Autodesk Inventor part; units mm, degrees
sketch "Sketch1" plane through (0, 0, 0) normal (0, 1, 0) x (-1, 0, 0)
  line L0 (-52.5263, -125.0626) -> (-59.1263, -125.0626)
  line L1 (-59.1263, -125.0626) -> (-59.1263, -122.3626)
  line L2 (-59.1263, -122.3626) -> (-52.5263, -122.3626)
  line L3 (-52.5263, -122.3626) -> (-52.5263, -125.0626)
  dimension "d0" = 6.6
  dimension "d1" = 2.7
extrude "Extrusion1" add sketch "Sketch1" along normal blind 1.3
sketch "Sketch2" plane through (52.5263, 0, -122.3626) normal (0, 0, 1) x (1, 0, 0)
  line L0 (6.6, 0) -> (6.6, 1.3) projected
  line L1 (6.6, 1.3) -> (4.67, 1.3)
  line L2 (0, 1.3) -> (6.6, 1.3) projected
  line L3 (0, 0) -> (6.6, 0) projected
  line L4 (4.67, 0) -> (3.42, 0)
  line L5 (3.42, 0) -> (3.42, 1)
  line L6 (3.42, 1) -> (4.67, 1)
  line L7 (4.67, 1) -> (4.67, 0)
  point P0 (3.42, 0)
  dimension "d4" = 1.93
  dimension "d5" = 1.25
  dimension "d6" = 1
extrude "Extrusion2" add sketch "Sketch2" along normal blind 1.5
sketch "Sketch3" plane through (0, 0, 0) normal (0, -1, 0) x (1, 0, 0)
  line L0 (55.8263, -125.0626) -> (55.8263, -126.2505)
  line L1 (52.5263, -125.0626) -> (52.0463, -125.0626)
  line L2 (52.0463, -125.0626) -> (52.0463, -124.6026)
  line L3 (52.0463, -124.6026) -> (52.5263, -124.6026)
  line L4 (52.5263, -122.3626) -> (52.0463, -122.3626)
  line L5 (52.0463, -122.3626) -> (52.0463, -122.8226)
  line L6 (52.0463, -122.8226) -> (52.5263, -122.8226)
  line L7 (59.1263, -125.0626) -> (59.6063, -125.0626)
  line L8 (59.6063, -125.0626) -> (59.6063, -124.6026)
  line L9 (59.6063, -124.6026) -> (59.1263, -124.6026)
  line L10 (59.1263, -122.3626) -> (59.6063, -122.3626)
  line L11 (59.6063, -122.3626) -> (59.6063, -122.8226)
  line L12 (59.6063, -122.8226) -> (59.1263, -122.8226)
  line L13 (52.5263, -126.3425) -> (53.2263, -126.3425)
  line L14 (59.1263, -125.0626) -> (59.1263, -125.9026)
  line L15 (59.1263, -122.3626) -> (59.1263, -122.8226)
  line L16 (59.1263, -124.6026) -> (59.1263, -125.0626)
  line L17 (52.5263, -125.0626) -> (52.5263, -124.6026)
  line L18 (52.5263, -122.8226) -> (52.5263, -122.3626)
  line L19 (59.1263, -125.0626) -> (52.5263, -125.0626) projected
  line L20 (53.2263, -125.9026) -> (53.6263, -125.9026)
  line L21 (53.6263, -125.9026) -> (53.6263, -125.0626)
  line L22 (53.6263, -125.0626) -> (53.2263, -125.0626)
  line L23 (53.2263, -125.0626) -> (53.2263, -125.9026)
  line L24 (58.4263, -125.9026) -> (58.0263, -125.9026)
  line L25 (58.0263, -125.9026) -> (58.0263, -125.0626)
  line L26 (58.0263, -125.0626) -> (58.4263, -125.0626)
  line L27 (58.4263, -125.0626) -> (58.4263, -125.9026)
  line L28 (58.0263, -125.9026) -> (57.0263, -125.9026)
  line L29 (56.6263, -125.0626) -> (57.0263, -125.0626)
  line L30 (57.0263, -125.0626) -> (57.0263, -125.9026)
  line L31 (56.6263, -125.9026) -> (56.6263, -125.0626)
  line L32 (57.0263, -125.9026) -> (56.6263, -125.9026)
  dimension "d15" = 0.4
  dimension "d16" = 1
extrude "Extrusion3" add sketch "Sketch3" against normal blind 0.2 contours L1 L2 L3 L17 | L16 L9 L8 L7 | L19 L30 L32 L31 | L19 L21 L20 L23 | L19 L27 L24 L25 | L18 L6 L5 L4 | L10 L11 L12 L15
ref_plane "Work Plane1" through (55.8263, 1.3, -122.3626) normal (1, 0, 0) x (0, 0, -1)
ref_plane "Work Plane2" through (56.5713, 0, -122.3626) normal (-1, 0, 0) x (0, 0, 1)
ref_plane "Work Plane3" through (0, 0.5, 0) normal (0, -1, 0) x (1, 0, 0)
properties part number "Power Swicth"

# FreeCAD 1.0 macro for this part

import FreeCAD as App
import Part
import Sketcher

V = App.Vector
Q = App.Units.Quantity

doc = App.newDocument("Part")
params = doc.addObject("Spreadsheet::Sheet", "Params")
for row, (alias, value) in enumerate([
    ("sketch1_width", "6.6 mm"),
    ("sketch1_height", "2.7 mm"),
    ("pad1_length", "1.3 mm"),
    ("sketch2_height", "1 mm"),
    ("sketch2_width", "1.25 mm"),
    ("pad2_length", "1.5 mm"),
    ("sketch3_width", "0.4 mm"),
    ("sketch3_width2", "0.48 mm"),
    ("sketch3_height", "0.46 mm"),
    ("sketch3_height2", "0.84 mm"),
    ("pad3_length", "0.2 mm"),
], start=1):
    params.set(f"A{row}", alias)
    params.set(f"B{row}", "=" + value)
    params.setAlias(f"B{row}", alias)

body = doc.addObject("PartDesign::Body", "Body")

sketch1 = body.newObject("Sketcher::SketchObject", "Sketch")
sketch1.AttachmentSupport = (doc.getObject("XZ_Plane"), [""])
sketch1.MapMode = "FlatFace"
sketch1.addGeometry(Part.LineSegment(V(59.1263, -125.0626, 0), V(52.5263, -125.0626, 0)), False)
sketch1.addGeometry(Part.LineSegment(V(52.5263, -125.0626, 0), V(52.5263, -122.3626, 0)), False)
sketch1.addGeometry(Part.LineSegment(V(52.5263, -122.3626, 0), V(59.1263, -122.3626, 0)), False)
sketch1.addGeometry(Part.LineSegment(V(59.1263, -122.3626, 0), V(59.1263, -125.0626, 0)), False)
sketch1.addConstraint(Sketcher.Constraint("Coincident", 0, 2, 1, 1))
sketch1.addConstraint(Sketcher.Constraint("Coincident", 1, 2, 2, 1))
sketch1.addConstraint(Sketcher.Constraint("Coincident", 2, 2, 3, 1))
sketch1.addConstraint(Sketcher.Constraint("Coincident", 3, 2, 0, 1))
sketch1.addConstraint(Sketcher.Constraint("Horizontal", 0))
sketch1.addConstraint(Sketcher.Constraint("Vertical", 1))
sketch1.addConstraint(Sketcher.Constraint("Horizontal", 2))
sketch1.addConstraint(Sketcher.Constraint("Vertical", 3))
sketch1.addConstraint(Sketcher.Constraint("DistanceX", 0, 2, 0, 1, Q("6.6 mm")))
sketch1.addConstraint(Sketcher.Constraint("DistanceY", 1, 1, 1, 2, Q("2.7 mm")))
sketch1.addConstraint(Sketcher.Constraint("DistanceX", -1, 1, 0, 2, Q("52.5263 mm")))
sketch1.addConstraint(Sketcher.Constraint("DistanceY", 0, 2, -1, 1, Q("125.0626 mm")))
sketch1.setExpression("Constraints[8]", "Params.sketch1_width")
sketch1.setExpression("Constraints[9]", "Params.sketch1_height")
pad1 = body.newObject("PartDesign::Pad", "Pad")
pad1.Profile = sketch1
pad1.setExpression("Length", "Params.pad1_length")
pad1.Reversed = True

sketch2 = body.newObject("Sketcher::SketchObject", "Sketch001")
sketch2.AttachmentSupport = (doc.getObject("XY_Plane"), [""])
sketch2.MapMode = "FlatFace"
sketch2.AttachmentOffset = App.Placement(V(0, 0, -122.3626), App.Rotation())
sketch2.addGeometry(Part.LineSegment(V(55.9463, 1, 0), V(55.9463, 0, 0)), False)
sketch2.addGeometry(Part.LineSegment(V(55.9463, 0, 0), V(57.1963, 0, 0)), False)
sketch2.addGeometry(Part.LineSegment(V(57.1963, 0, 0), V(57.1963, 1, 0)), False)
sketch2.addGeometry(Part.LineSegment(V(57.1963, 1, 0), V(55.9463, 1, 0)), False)
sketch2.addConstraint(Sketcher.Constraint("Coincident", 0, 2, 1, 1))
sketch2.addConstraint(Sketcher.Constraint("Coincident", 1, 2, 2, 1))
sketch2.addConstraint(Sketcher.Constraint("Coincident", 2, 2, 3, 1))
sketch2.addConstraint(Sketcher.Constraint("Coincident", 3, 2, 0, 1))
sketch2.addConstraint(Sketcher.Constraint("Vertical", 0))
sketch2.addConstraint(Sketcher.Constraint("Horizontal", 1))
sketch2.addConstraint(Sketcher.Constraint("Vertical", 2))
sketch2.addConstraint(Sketcher.Constraint("Horizontal", 3))
sketch2.addConstraint(Sketcher.Constraint("PointOnObject", 0, 2, -1))
sketch2.addConstraint(Sketcher.Constraint("DistanceY", 0, 2, 0, 1, Q("1 mm")))
sketch2.addConstraint(Sketcher.Constraint("DistanceX", 1, 1, 1, 2, Q("1.25 mm")))
sketch2.addConstraint(Sketcher.Constraint("DistanceX", -1, 1, 0, 2, Q("55.9463 mm")))
sketch2.setExpression("Constraints[9]", "Params.sketch2_height")
sketch2.setExpression("Constraints[10]", "Params.sketch2_width")
pad2 = body.newObject("PartDesign::Pad", "Pad001")
pad2.Profile = sketch2
pad2.setExpression("Length", "Params.pad2_length")

sketch3 = body.newObject("Sketcher::SketchObject", "Sketch002")
sketch3.AttachmentSupport = (doc.getObject("XZ_Plane"), [""])
sketch3.MapMode = "FlatFace"
sketch3.addGeometry(Part.LineSegment(V(52.0463, -125.0626, 0), V(52.5263, -125.0626, 0)), False)
sketch3.addGeometry(Part.LineSegment(V(52.5263, -125.0626, 0), V(52.5263, -124.6026, 0)), False)
sketch3.addGeometry(Part.LineSegment(V(52.5263, -124.6026, 0), V(52.0463, -124.6026, 0)), False)
sketch3.addGeometry(Part.LineSegment(V(52.0463, -124.6026, 0), V(52.0463, -125.0626, 0)), False)
sketch3.addGeometry(Part.LineSegment(V(59.1263, -124.6026, 0), V(59.1263, -125.0626, 0)), False)
sketch3.addGeometry(Part.LineSegment(V(59.1263, -125.0626, 0), V(59.6063, -125.0626, 0)), False)
sketch3.addGeometry(Part.LineSegment(V(59.6063, -125.0626, 0), V(59.6063, -124.6026, 0)), False)
sketch3.addGeometry(Part.LineSegment(V(59.6063, -124.6026, 0), V(59.1263, -124.6026, 0)), False)
sketch3.addGeometry(Part.LineSegment(V(57.0263, -125.0626, 0), V(56.6263, -125.0626, 0)), False)
sketch3.addGeometry(Part.LineSegment(V(56.6263, -125.0626, 0), V(56.6263, -125.9026, 0)), False)
sketch3.addGeometry(Part.LineSegment(V(56.6263, -125.9026, 0), V(57.0263, -125.9026, 0)), False)
sketch3.addGeometry(Part.LineSegment(V(57.0263, -125.9026, 0), V(57.0263, -125.0626, 0)), False)
sketch3.addGeometry(Part.LineSegment(V(53.6263, -125.0626, 0), V(53.2263, -125.0626, 0)), False)
sketch3.addGeometry(Part.LineSegment(V(53.2263, -125.0626, 0), V(53.2263, -125.9026, 0)), False)
sketch3.addGeometry(Part.LineSegment(V(53.2263, -125.9026, 0), V(53.6263, -125.9026, 0)), False)
sketch3.addGeometry(Part.LineSegment(V(53.6263, -125.9026, 0), V(53.6263, -125.0626, 0)), False)
sketch3.addGeometry(Part.LineSegment(V(58.4263, -125.0626, 0), V(58.0263, -125.0626, 0)), False)
sketch3.addGeometry(Part.LineSegment(V(58.0263, -125.0626, 0), V(58.0263, -125.9026, 0)), False)
sketch3.addGeometry(Part.LineSegment(V(58.0263, -125.9026, 0), V(58.4263, -125.9026, 0)), False)
sketch3.addGeometry(Part.LineSegment(V(58.4263, -125.9026, 0), V(58.4263, -125.0626, 0)), False)
sketch3.addGeometry(Part.LineSegment(V(52.5263, -122.8226, 0), V(52.5263, -122.3626, 0)), False)
sketch3.addGeometry(Part.LineSegment(V(52.5263, -122.3626, 0), V(52.0463, -122.3626, 0)), False)
sketch3.addGeometry(Part.LineSegment(V(52.0463, -122.3626, 0), V(52.0463, -122.8226, 0)), False)
sketch3.addGeometry(Part.LineSegment(V(52.0463, -122.8226, 0), V(52.5263, -122.8226, 0)), False)
sketch3.addGeometry(Part.LineSegment(V(59.6063, -122.3626, 0), V(59.1263, -122.3626, 0)), False)
sketch3.addGeometry(Part.LineSegment(V(59.1263, -122.3626, 0), V(59.1263, -122.8226, 0)), False)
sketch3.addGeometry(Part.LineSegment(V(59.1263, -122.8226, 0), V(59.6063, -122.8226, 0)), False)
sketch3.addGeometry(Part.LineSegment(V(59.6063, -122.8226, 0), V(59.6063, -122.3626, 0)), False)
sketch3.addConstraint(Sketcher.Constraint("Coincident", 0, 2, 1, 1))
sketch3.addConstraint(Sketcher.Constraint("Coincident", 1, 2, 2, 1))
sketch3.addConstraint(Sketcher.Constraint("Coincident", 2, 2, 3, 1))
sketch3.addConstraint(Sketcher.Constraint("Coincident", 3, 2, 0, 1))
sketch3.addConstraint(Sketcher.Constraint("Coincident", 4, 2, 5, 1))
sketch3.addConstraint(Sketcher.Constraint("Coincident", 5, 2, 6, 1))
sketch3.addConstraint(Sketcher.Constraint("Coincident", 6, 2, 7, 1))
sketch3.addConstraint(Sketcher.Constraint("Coincident", 7, 2, 4, 1))
sketch3.addConstraint(Sketcher.Constraint("Coincident", 8, 2, 9, 1))
sketch3.addConstraint(Sketcher.Constraint("Coincident", 9, 2, 10, 1))
sketch3.addConstraint(Sketcher.Constraint("Coincident", 10, 2, 11, 1))
sketch3.addConstraint(Sketcher.Constraint("Coincident", 11, 2, 8, 1))
sketch3.addConstraint(Sketcher.Constraint("Coincident", 12, 2, 13, 1))
sketch3.addConstraint(Sketcher.Constraint("Coincident", 13, 2, 14, 1))
sketch3.addConstraint(Sketcher.Constraint("Coincident", 14, 2, 15, 1))
sketch3.addConstraint(Sketcher.Constraint("Coincident", 15, 2, 12, 1))
sketch3.addConstraint(Sketcher.Constraint("Coincident", 16, 2, 17, 1))
sketch3.addConstraint(Sketcher.Constraint("Coincident", 17, 2, 18, 1))
sketch3.addConstraint(Sketcher.Constraint("Coincident", 18, 2, 19, 1))
sketch3.addConstraint(Sketcher.Constraint("Coincident", 19, 2, 16, 1))
sketch3.addConstraint(Sketcher.Constraint("Coincident", 20, 2, 21, 1))
sketch3.addConstraint(Sketcher.Constraint("Coincident", 21, 2, 22, 1))
sketch3.addConstraint(Sketcher.Constraint("Coincident", 22, 2, 23, 1))
sketch3.addConstraint(Sketcher.Constraint("Coincident", 23, 2, 20, 1))
sketch3.addConstraint(Sketcher.Constraint("Coincident", 24, 2, 25, 1))
sketch3.addConstraint(Sketcher.Constraint("Coincident", 25, 2, 26, 1))
sketch3.addConstraint(Sketcher.Constraint("Coincident", 26, 2, 27, 1))
sketch3.addConstraint(Sketcher.Constraint("Coincident", 27, 2, 24, 1))
sketch3.addConstraint(Sketcher.Constraint("Horizontal", 0))
sketch3.addConstraint(Sketcher.Constraint("Vertical", 1))
sketch3.addConstraint(Sketcher.Constraint("Horizontal", 2))
sketch3.addConstraint(Sketcher.Constraint("Vertical", 3))
sketch3.addConstraint(Sketcher.Constraint("Vertical", 4))
sketch3.addConstraint(Sketcher.Constraint("Horizontal", 5))
sketch3.addConstraint(Sketcher.Constraint("Vertical", 6))
sketch3.addConstraint(Sketcher.Constraint("Horizontal", 7))
sketch3.addConstraint(Sketcher.Constraint("Horizontal", 8))
sketch3.addConstraint(Sketcher.Constraint("Vertical", 9))
sketch3.addConstraint(Sketcher.Constraint("Horizontal", 10))
sketch3.addConstraint(Sketcher.Constraint("Vertical", 11))
sketch3.addConstraint(Sketcher.Constraint("Horizontal", 12))
sketch3.addConstraint(Sketcher.Constraint("Vertical", 13))
sketch3.addConstraint(Sketcher.Constraint("Horizontal", 14))
sketch3.addConstraint(Sketcher.Constraint("Vertical", 15))
sketch3.addConstraint(Sketcher.Constraint("Horizontal", 16))
sketch3.addConstraint(Sketcher.Constraint("Vertical", 17))
sketch3.addConstraint(Sketcher.Constraint("Horizontal", 18))
sketch3.addConstraint(Sketcher.Constraint("Vertical", 19))
sketch3.addConstraint(Sketcher.Constraint("Vertical", 20))
sketch3.addConstraint(Sketcher.Constraint("Horizontal", 21))
sketch3.addConstraint(Sketcher.Constraint("Vertical", 22))
sketch3.addConstraint(Sketcher.Constraint("Horizontal", 23))
sketch3.addConstraint(Sketcher.Constraint("Horizontal", 24))
sketch3.addConstraint(Sketcher.Constraint("Vertical", 25))
sketch3.addConstraint(Sketcher.Constraint("Horizontal", 26))
sketch3.addConstraint(Sketcher.Constraint("Vertical", 27))
sketch3.addConstraint(Sketcher.Constraint("Horizontal", 3, 2, 4, 2))
sketch3.addConstraint(Sketcher.Constraint("Horizontal", 2, 2, 6, 2))
sketch3.addConstraint(Sketcher.Constraint("Horizontal", 5, 2, 8, 2))
sketch3.addConstraint(Sketcher.Constraint("Horizontal", 11, 2, 12, 2))
sketch3.addConstraint(Sketcher.Constraint("Horizontal", 10, 2, 13, 2))
sketch3.addConstraint(Sketcher.Constraint("Horizontal", 15, 2, 16, 2))
sketch3.addConstraint(Sketcher.Constraint("Horizontal", 14, 2, 17, 2))
sketch3.addConstraint(Sketcher.Constraint("Horizontal", 21, 2, 24, 2))
sketch3.addConstraint(Sketcher.Constraint("Horizontal", 23, 2, 25, 2))
sketch3.addConstraint(Sketcher.Constraint("Vertical", 1, 2, 20, 2))
sketch3.addConstraint(Sketcher.Constraint("Vertical", 3, 2, 21, 2))
sketch3.addConstraint(Sketcher.Constraint("Vertical", 7, 2, 24, 2))
sketch3.addConstraint(Sketcher.Constraint("Vertical", 6, 2, 26, 2))
sketch3.addConstraint(Sketcher.Constraint("Equal", 2, 5))
sketch3.addConstraint(Sketcher.Constraint("Equal", 10, 12))
sketch3.addConstraint(Sketcher.Constraint("Equal", 14, 16))
sketch3.addConstraint(Sketcher.Constraint("Equal", 6, 20))
sketch3.addConstraint(Sketcher.Constraint("DistanceX", 8, 2, 8, 1, Q("0.4 mm")))
sketch3.addConstraint(Sketcher.Constraint("DistanceX", 11, 2, 16, 2, Q("1 mm")))
sketch3.addConstraint(Sketcher.Constraint("DistanceX", 0, 1, 0, 2, Q("0.48 mm")))
sketch3.addConstraint(Sketcher.Constraint("DistanceY", 1, 1, 1, 2, Q("0.46 mm")))
sketch3.addConstraint(Sketcher.Constraint("DistanceY", 9, 2, 9, 1, Q("0.84 mm")))
sketch3.addConstraint(Sketcher.Constraint("DistanceX", 0, 2, 4, 2, Q("6.6 mm")))
sketch3.addConstraint(Sketcher.Constraint("DistanceX", 8, 2, 4, 2, Q("2.5 mm")))
sketch3.addConstraint(Sketcher.Constraint("DistanceX", 0, 2, 12, 2, Q("0.7 mm")))
sketch3.addConstraint(Sketcher.Constraint("DistanceY", 0, 2, 20, 2, Q("2.7 mm")))
sketch3.addConstraint(Sketcher.Constraint("DistanceX", -1, 1, 0, 2, Q("52.5263 mm")))
sketch3.addConstraint(Sketcher.Constraint("DistanceY", 0, 2, -1, 1, Q("125.0626 mm")))
sketch3.setExpression("Constraints[73]", "Params.sketch3_width")
sketch3.setExpression("Constraints[75]", "Params.sketch3_width2")
sketch3.setExpression("Constraints[76]", "Params.sketch3_height")
sketch3.setExpression("Constraints[77]", "Params.sketch3_height2")
pad3 = body.newObject("PartDesign::Pad", "Pad002")
pad3.Profile = sketch3
pad3.setExpression("Length", "Params.pad3_length")
pad3.Reversed = True

doc.recompute()
